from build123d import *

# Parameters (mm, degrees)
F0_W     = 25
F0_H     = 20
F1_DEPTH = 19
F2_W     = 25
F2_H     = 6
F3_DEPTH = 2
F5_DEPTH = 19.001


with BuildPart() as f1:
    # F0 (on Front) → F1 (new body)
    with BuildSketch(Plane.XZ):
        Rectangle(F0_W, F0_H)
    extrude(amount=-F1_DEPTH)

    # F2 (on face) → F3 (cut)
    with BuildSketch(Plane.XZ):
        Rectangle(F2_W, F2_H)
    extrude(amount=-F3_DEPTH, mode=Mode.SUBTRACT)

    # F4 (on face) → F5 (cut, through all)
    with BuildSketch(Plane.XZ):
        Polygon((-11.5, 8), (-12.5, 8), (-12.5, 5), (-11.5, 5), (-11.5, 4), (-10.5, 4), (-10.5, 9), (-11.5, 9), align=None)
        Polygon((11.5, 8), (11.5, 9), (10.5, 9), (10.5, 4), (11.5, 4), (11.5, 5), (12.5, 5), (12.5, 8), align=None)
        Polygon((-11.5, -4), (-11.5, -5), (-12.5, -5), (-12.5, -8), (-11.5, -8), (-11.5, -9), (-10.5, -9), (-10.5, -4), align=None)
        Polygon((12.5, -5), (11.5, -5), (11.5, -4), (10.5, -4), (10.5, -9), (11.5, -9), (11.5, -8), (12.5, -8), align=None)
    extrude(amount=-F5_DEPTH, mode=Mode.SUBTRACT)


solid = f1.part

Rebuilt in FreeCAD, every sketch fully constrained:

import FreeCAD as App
import Part
import Sketcher

V = App.Vector
Q = App.Units.Quantity

doc = App.newDocument("Part")
body = doc.addObject("PartDesign::Body", "Body")

sketch1 = body.newObject("Sketcher::SketchObject", "Sketch")
sketch1.AttachmentSupport = (doc.getObject("XZ_Plane"), [""])
sketch1.MapMode = "FlatFace"
sketch1.addGeometry(Part.LineSegment(V(-12.5, 10, 0), V(-12.5, -10, 0)), False)
sketch1.addGeometry(Part.LineSegment(V(-12.5, -10, 0), V(12.5, -10, 0)), False)
sketch1.addGeometry(Part.LineSegment(V(12.5, -10, 0), V(12.5, 10, 0)), False)
sketch1.addGeometry(Part.LineSegment(V(12.5, 10, 0), V(-12.5, 10, 0)), False)
sketch1.addConstraint(Sketcher.Constraint("Coincident", 0, 2, 1, 1))
sketch1.addConstraint(Sketcher.Constraint("Coincident", 1, 2, 2, 1))
sketch1.addConstraint(Sketcher.Constraint("Coincident", 2, 2, 3, 1))
sketch1.addConstraint(Sketcher.Constraint("Coincident", 3, 2, 0, 1))
sketch1.addConstraint(Sketcher.Constraint("Vertical", 0))
sketch1.addConstraint(Sketcher.Constraint("Horizontal", 1))
sketch1.addConstraint(Sketcher.Constraint("Vertical", 2))
sketch1.addConstraint(Sketcher.Constraint("Horizontal", 3))
sketch1.addConstraint(Sketcher.Constraint("Symmetric", 0, 2, 2, 2, -1, 1))
sketch1.addConstraint(Sketcher.Constraint("DistanceX", 1, 1, 1, 2, Q("25 mm")))
sketch1.addConstraint(Sketcher.Constraint("DistanceY", 0, 2, 0, 1, Q("20 mm")))
pad1 = body.newObject("PartDesign::Pad", "Pad")
pad1.Profile = sketch1
pad1.Length = 19
pad1.Reversed = True

sketch2 = body.newObject("Sketcher::SketchObject", "Sketch001")
sketch2.AttachmentSupport = (doc.getObject("XZ_Plane"), [""])
sketch2.MapMode = "FlatFace"
sketch2.addGeometry(Part.LineSegment(V(-12.5, 3, 0), V(-12.5, -3, 0)), False)
sketch2.addGeometry(Part.LineSegment(V(-12.5, -3, 0), V(12.5, -3, 0)), False)
sketch2.addGeometry(Part.LineSegment(V(12.5, -3, 0), V(12.5, 3, 0)), False)
sketch2.addGeometry(Part.LineSegment(V(12.5, 3, 0), V(-12.5, 3, 0)), False)
sketch2.addConstraint(Sketcher.Constraint("Coincident", 0, 2, 1, 1))
sketch2.addConstraint(Sketcher.Constraint("Coincident", 1, 2, 2, 1))
sketch2.addConstraint(Sketcher.Constraint("Coincident", 2, 2, 3, 1))
sketch2.addConstraint(Sketcher.Constraint("Coincident", 3, 2, 0, 1))
sketch2.addConstraint(Sketcher.Constraint("Vertical", 0))
sketch2.addConstraint(Sketcher.Constraint("Horizontal", 1))
sketch2.addConstraint(Sketcher.Constraint("Vertical", 2))
sketch2.addConstraint(Sketcher.Constraint("Horizontal", 3))
sketch2.addConstraint(Sketcher.Constraint("Symmetric", 0, 2, 2, 2, -1, 1))
sketch2.addConstraint(Sketcher.Constraint("DistanceX", 1, 1, 1, 2, Q("25 mm")))
sketch2.addConstraint(Sketcher.Constraint("DistanceY", 0, 2, 0, 1, Q("6 mm")))
pocket1 = body.newObject("PartDesign::Pocket", "Pocket")
pocket1.Profile = sketch2
pocket1.Length = 2

sketch3 = body.newObject("Sketcher::SketchObject", "Sketch002")
sketch3.AttachmentSupport = (doc.getObject("XZ_Plane"), [""])
sketch3.MapMode = "FlatFace"
sketch3.addGeometry(Part.LineSegment(V(-11.5, 8, 0), V(-12.5, 8, 0)), False)
sketch3.addGeometry(Part.LineSegment(V(-12.5, 8, 0), V(-12.5, 5, 0)), False)
sketch3.addGeometry(Part.LineSegment(V(-12.5, 5, 0), V(-11.5, 5, 0)), False)
sketch3.addGeometry(Part.LineSegment(V(-11.5, 5, 0), V(-11.5, 4, 0)), False)
sketch3.addGeometry(Part.LineSegment(V(-11.5, 4, 0), V(-10.5, 4, 0)), False)
sketch3.addGeometry(Part.LineSegment(V(-10.5, 4, 0), V(-10.5, 9, 0)), False)
sketch3.addGeometry(Part.LineSegment(V(-10.5, 9, 0), V(-11.5, 9, 0)), False)
sketch3.addGeometry(Part.LineSegment(V(-11.5, 9, 0), V(-11.5, 8, 0)), False)
sketch3.addGeometry(Part.LineSegment(V(11.5, 8, 0), V(11.5, 9, 0)), False)
sketch3.addGeometry(Part.LineSegment(V(11.5, 9, 0), V(10.5, 9, 0)), False)
sketch3.addGeometry(Part.LineSegment(V(10.5, 9, 0), V(10.5, 4, 0)), False)
sketch3.addGeometry(Part.LineSegment(V(10.5, 4, 0), V(11.5, 4, 0)), False)
sketch3.addGeometry(Part.LineSegment(V(11.5, 4, 0), V(11.5, 5, 0)), False)
sketch3.addGeometry(Part.LineSegment(V(11.5, 5, 0), V(12.5, 5, 0)), False)
sketch3.addGeometry(Part.LineSegment(V(12.5, 5, 0), V(12.5, 8, 0)), False)
sketch3.addGeometry(Part.LineSegment(V(12.5, 8, 0), V(11.5, 8, 0)), False)
sketch3.addGeometry(Part.LineSegment(V(-11.5, -4, 0), V(-11.5, -5, 0)), False)
sketch3.addGeometry(Part.LineSegment(V(-11.5, -5, 0), V(-12.5, -5, 0)), False)
sketch3.addGeometry(Part.LineSegment(V(-12.5, -5, 0), V(-12.5, -8, 0)), False)
sketch3.addGeometry(Part.LineSegment(V(-12.5, -8, 0), V(-11.5, -8, 0)), False)
sketch3.addGeometry(Part.LineSegment(V(-11.5, -8, 0), V(-11.5, -9, 0)), False)
sketch3.addGeometry(Part.LineSegment(V(-11.5, -9, 0), V(-10.5, -9, 0)), False)
sketch3.addGeometry(Part.LineSegment(V(-10.5, -9, 0), V(-10.5, -4, 0)), False)
sketch3.addGeometry(Part.LineSegment(V(-10.5, -4, 0), V(-11.5, -4, 0)), False)
sketch3.addGeometry(Part.LineSegment(V(12.5, -5, 0), V(11.5, -5, 0)), False)
sketch3.addGeometry(Part.LineSegment(V(11.5, -5, 0), V(11.5, -4, 0)), False)
sketch3.addGeometry(Part.LineSegment(V(11.5, -4, 0), V(10.5, -4, 0)), False)
sketch3.addGeometry(Part.LineSegment(V(10.5, -4, 0), V(10.5, -9, 0)), False)
sketch3.addGeometry(Part.LineSegment(V(10.5, -9, 0), V(11.5, -9, 0)), False)
sketch3.addGeometry(Part.LineSegment(V(11.5, -9, 0), V(11.5, -8, 0)), False)
sketch3.addGeometry(Part.LineSegment(V(11.5, -8, 0), V(12.5, -8, 0)), False)
sketch3.addGeometry(Part.LineSegment(V(12.5, -8, 0), V(12.5, -5, 0)), False)
sketch3.addConstraint(Sketcher.Constraint("Coincident", 0, 2, 1, 1))
sketch3.addConstraint(Sketcher.Constraint("Coincident", 1, 2, 2, 1))
sketch3.addConstraint(Sketcher.Constraint("Coincident", 2, 2, 3, 1))
sketch3.addConstraint(Sketcher.Constraint("Coincident", 3, 2, 4, 1))
sketch3.addConstraint(Sketcher.Constraint("Coincident", 4, 2, 5, 1))
sketch3.addConstraint(Sketcher.Constraint("Coincident", 5, 2, 6, 1))
sketch3.addConstraint(Sketcher.Constraint("Coincident", 6, 2, 7, 1))
sketch3.addConstraint(Sketcher.Constraint("Coincident", 7, 2, 0, 1))
sketch3.addConstraint(Sketcher.Constraint("Coincident", 8, 2, 9, 1))
sketch3.addConstraint(Sketcher.Constraint("Coincident", 9, 2, 10, 1))
sketch3.addConstraint(Sketcher.Constraint("Coincident", 10, 2, 11, 1))
sketch3.addConstraint(Sketcher.Constraint("Coincident", 11, 2, 12, 1))
sketch3.addConstraint(Sketcher.Constraint("Coincident", 12, 2, 13, 1))
sketch3.addConstraint(Sketcher.Constraint("Coincident", 13, 2, 14, 1))
sketch3.addConstraint(Sketcher.Constraint("Coincident", 14, 2, 15, 1))
sketch3.addConstraint(Sketcher.Constraint("Coincident", 15, 2, 8, 1))
sketch3.addConstraint(Sketcher.Constraint("Coincident", 16, 2, 17, 1))
sketch3.addConstraint(Sketcher.Constraint("Coincident", 17, 2, 18, 1))
sketch3.addConstraint(Sketcher.Constraint("Coincident", 18, 2, 19, 1))
sketch3.addConstraint(Sketcher.Constraint("Coincident", 19, 2, 20, 1))
sketch3.addConstraint(Sketcher.Constraint("Coincident", 20, 2, 21, 1))
sketch3.addConstraint(Sketcher.Constraint("Coincident", 21, 2, 22, 1))
sketch3.addConstraint(Sketcher.Constraint("Coincident", 22, 2, 23, 1))
sketch3.addConstraint(Sketcher.Constraint("Coincident", 23, 2, 16, 1))
sketch3.addConstraint(Sketcher.Constraint("Coincident", 24, 2, 25, 1))
sketch3.addConstraint(Sketcher.Constraint("Coincident", 25, 2, 26, 1))
sketch3.addConstraint(Sketcher.Constraint("Coincident", 26, 2, 27, 1))
sketch3.addConstraint(Sketcher.Constraint("Coincident", 27, 2, 28, 1))
sketch3.addConstraint(Sketcher.Constraint("Coincident", 28, 2, 29, 1))
sketch3.addConstraint(Sketcher.Constraint("Coincident", 29, 2, 30, 1))
sketch3.addConstraint(Sketcher.Constraint("Coincident", 30, 2, 31, 1))
sketch3.addConstraint(Sketcher.Constraint("Coincident", 31, 2, 24, 1))
sketch3.addConstraint(Sketcher.Constraint("Horizontal", 0))
sketch3.addConstraint(Sketcher.Constraint("Vertical", 1))
sketch3.addConstraint(Sketcher.Constraint("Horizontal", 2))
sketch3.addConstraint(Sketcher.Constraint("Vertical", 3))
sketch3.addConstraint(Sketcher.Constraint("Horizontal", 4))
sketch3.addConstraint(Sketcher.Constraint("Vertical", 5))
sketch3.addConstraint(Sketcher.Constraint("Horizontal", 6))
sketch3.addConstraint(Sketcher.Constraint("Vertical", 7))
sketch3.addConstraint(Sketcher.Constraint("Vertical", 8))
sketch3.addConstraint(Sketcher.Constraint("Horizontal", 9))
sketch3.addConstraint(Sketcher.Constraint("Vertical", 10))
sketch3.addConstraint(Sketcher.Constraint("Horizontal", 11))
sketch3.addConstraint(Sketcher.Constraint("Vertical", 12))
sketch3.addConstraint(Sketcher.Constraint("Horizontal", 13))
sketch3.addConstraint(Sketcher.Constraint("Vertical", 14))
sketch3.addConstraint(Sketcher.Constraint("Horizontal", 15))
sketch3.addConstraint(Sketcher.Constraint("Vertical", 16))
sketch3.addConstraint(Sketcher.Constraint("Horizontal", 17))
sketch3.addConstraint(Sketcher.Constraint("Vertical", 18))
sketch3.addConstraint(Sketcher.Constraint("Horizontal", 19))
sketch3.addConstraint(Sketcher.Constraint("Vertical", 20))
sketch3.addConstraint(Sketcher.Constraint("Horizontal", 21))
sketch3.addConstraint(Sketcher.Constraint("Vertical", 22))
sketch3.addConstraint(Sketcher.Constraint("Horizontal", 23))
sketch3.addConstraint(Sketcher.Constraint("Horizontal", 24))
sketch3.addConstraint(Sketcher.Constraint("Vertical", 25))
sketch3.addConstraint(Sketcher.Constraint("Horizontal", 26))
sketch3.addConstraint(Sketcher.Constraint("Vertical", 27))
sketch3.addConstraint(Sketcher.Constraint("Horizontal", 28))
sketch3.addConstraint(Sketcher.Constraint("Vertical", 29))
sketch3.addConstraint(Sketcher.Constraint("Horizontal", 30))
sketch3.addConstraint(Sketcher.Constraint("Vertical", 31))
sketch3.addConstraint(Sketcher.Constraint("Symmetric", 12, 2, 16, 2, -1, 1))
sketch3.addConstraint(Sketcher.Constraint("Symmetric", 14, 2, 18, 2, -1, 1))
sketch3.addConstraint(Sketcher.Constraint("Symmetric", 8, 2, 20, 2, -1, 1))
sketch3.addConstraint(Sketcher.Constraint("Symmetric", 10, 2, 22, 2, -1, 1))
sketch3.addConstraint(Sketcher.Constraint("Symmetric", 2, 2, 24, 2, -1, 1))
sketch3.addConstraint(Sketcher.Constraint("Symmetric", 4, 2, 26, 2, -1, 1))
sketch3.addConstraint(Sketcher.Constraint("Symmetric", 6, 2, 28, 2, -1, 1))
sketch3.addConstraint(Sketcher.Constraint("Symmetric", 0, 2, 30, 2, -1, 1))
sketch3.addConstraint(Sketcher.Constraint("Symmetric", 6, 2, 8, 2, -2))
sketch3.addConstraint(Sketcher.Constraint("Symmetric", 4, 2, 10, 2, -2))
sketch3.addConstraint(Sketcher.Constraint("Symmetric", 2, 2, 12, 2, -2))
sketch3.addConstraint(Sketcher.Constraint("Symmetric", 0, 2, 14, 2, -2))
sketch3.addConstraint(Sketcher.Constraint("Vertical", 3, 2, 6, 2))
sketch3.addConstraint(Sketcher.Constraint("Equal", 2, 4))
sketch3.addConstraint(Sketcher.Constraint("Equal", 30, 3))
sketch3.addConstraint(Sketcher.Constraint("Equal", 3, 7))
sketch3.addConstraint(Sketcher.Constraint("DistanceX", 0, 2, 0, 1, Q("1 mm")))
sketch3.addConstraint(Sketcher.Constraint("DistanceY", 1, 2, 1, 1, Q("3 mm")))
sketch3.addConstraint(Sketcher.Constraint("DistanceY", -1, 1, 0, 2, Q("8 mm")))
sketch3.addConstraint(Sketcher.Constraint("DistanceX", 5, 2, 8, 2, Q("22 mm")))
pocket2 = body.newObject("PartDesign::Pocket", "Pocket001")
pocket2.Profile = sketch3
pocket2.Type = "ThroughAll"

doc.recompute()
